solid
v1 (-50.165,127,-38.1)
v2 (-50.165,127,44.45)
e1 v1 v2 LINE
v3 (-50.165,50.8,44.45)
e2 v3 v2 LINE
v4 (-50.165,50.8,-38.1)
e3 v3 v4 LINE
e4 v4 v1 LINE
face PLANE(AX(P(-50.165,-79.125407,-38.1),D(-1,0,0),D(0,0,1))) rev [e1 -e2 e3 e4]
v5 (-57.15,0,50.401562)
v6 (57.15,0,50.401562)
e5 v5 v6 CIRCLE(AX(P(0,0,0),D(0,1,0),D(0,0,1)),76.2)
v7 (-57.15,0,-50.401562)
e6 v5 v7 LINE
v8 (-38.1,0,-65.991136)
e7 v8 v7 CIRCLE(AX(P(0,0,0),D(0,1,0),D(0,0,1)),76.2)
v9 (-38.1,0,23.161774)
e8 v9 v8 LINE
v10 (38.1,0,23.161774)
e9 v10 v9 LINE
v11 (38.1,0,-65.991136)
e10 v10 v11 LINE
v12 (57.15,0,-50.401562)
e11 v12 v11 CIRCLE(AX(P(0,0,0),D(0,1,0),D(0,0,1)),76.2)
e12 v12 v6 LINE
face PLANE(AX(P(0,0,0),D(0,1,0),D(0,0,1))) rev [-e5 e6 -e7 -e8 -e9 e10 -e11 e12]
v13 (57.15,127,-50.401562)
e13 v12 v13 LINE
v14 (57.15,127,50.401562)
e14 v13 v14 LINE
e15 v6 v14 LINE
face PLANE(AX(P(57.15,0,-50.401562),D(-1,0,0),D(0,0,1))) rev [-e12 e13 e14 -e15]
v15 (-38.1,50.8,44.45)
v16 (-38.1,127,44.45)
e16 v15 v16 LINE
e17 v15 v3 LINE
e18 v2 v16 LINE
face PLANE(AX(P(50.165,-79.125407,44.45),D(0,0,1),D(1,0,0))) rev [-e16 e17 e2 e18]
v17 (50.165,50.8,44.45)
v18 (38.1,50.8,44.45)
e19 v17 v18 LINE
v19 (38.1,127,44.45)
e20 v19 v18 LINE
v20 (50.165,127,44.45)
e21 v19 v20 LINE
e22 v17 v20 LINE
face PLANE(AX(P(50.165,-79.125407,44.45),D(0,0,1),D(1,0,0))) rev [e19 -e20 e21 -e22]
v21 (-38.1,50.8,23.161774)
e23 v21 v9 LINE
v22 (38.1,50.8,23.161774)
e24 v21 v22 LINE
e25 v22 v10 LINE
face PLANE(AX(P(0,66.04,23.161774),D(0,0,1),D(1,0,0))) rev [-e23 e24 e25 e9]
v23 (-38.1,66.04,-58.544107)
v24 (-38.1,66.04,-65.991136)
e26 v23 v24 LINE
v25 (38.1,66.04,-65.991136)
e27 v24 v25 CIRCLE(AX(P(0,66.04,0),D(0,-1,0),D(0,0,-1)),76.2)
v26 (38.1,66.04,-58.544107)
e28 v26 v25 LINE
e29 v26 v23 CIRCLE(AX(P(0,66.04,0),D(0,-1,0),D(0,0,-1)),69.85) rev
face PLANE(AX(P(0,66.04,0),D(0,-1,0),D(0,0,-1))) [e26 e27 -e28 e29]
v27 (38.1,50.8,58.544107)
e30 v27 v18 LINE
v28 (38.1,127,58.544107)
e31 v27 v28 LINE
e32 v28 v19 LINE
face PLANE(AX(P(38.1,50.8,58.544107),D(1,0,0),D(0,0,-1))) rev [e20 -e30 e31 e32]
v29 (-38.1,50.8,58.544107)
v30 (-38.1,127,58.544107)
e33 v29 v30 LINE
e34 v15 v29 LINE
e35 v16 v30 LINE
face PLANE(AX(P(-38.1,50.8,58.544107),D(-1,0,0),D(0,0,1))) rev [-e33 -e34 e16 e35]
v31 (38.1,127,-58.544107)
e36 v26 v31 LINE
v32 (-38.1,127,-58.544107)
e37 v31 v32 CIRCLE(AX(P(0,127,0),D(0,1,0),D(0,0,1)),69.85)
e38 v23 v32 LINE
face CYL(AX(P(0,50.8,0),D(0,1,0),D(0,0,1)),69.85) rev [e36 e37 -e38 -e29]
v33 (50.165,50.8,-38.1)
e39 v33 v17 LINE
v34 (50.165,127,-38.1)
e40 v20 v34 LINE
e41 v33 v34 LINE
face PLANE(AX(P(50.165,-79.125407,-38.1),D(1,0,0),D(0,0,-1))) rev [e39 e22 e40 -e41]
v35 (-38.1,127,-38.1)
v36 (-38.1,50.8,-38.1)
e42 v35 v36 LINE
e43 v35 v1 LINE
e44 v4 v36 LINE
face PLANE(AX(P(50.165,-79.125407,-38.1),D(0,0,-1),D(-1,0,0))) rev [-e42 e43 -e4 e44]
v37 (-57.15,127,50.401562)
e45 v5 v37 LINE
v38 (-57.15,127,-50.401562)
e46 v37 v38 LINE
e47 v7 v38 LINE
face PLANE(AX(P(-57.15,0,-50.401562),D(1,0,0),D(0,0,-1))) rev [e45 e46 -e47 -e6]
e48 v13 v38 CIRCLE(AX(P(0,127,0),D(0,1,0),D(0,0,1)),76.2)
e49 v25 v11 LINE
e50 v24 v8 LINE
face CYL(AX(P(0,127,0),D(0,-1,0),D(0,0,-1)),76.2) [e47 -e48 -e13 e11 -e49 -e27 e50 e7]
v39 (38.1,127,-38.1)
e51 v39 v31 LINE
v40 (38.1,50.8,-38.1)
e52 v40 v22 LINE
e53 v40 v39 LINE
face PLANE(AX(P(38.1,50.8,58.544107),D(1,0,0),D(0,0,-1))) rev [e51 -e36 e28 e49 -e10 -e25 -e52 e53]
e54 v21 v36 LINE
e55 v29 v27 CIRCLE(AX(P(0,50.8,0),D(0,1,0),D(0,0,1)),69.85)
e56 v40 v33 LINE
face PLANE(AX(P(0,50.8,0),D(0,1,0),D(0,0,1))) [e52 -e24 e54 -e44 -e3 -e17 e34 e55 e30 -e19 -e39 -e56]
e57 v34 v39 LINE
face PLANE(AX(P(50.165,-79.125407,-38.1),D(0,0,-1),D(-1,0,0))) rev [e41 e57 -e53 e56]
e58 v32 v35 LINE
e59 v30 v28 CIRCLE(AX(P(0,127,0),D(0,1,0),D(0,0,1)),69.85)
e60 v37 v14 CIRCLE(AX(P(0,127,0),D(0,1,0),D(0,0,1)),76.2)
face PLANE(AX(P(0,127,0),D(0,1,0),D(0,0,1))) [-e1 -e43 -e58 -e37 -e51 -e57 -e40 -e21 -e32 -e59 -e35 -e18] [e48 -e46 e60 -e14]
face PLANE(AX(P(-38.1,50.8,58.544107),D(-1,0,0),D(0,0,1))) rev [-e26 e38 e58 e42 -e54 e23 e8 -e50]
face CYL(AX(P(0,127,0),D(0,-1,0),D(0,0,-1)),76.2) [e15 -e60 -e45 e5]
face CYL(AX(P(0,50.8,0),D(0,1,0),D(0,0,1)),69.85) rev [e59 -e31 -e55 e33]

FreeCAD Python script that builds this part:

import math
import FreeCAD as App
import Part
import Sketcher
from FreeCAD import Vector
Q = App.Units.Quantity


def add_polygon(sketch, points):
    """Adds a closed chain of lines whose ends are joined by coincident constraints."""
    first, n = sketch.GeometryCount, len(points)
    for a, b in zip(points, points[1:] + points[:1]):
        sketch.addGeometry(Part.LineSegment(App.Vector(*a, 0), App.Vector(*b, 0)), False)
    for i in range(n):
        sketch.addConstraint(Sketcher.Constraint("Coincident", first + i, 2, first + (i + 1) % n, 1))

doc = App.newDocument("Part")
params = doc.addObject("Spreadsheet::Sheet", "Params")
for row, (alias, value) in enumerate([
    ("sketch1_diameter", "6 in"),
    ("pad1_length", "5 in"),
    ("sketch2_radius", "2.75 in"),
    ("pocket1_length", "3 in"),
    ("sketch3_radius", "3 in"),
    ("sketch3_width", "3 in"),
    ("pocket2_length", "2.6 in"),
    ("sketch4_radius", "3 in"),
    ("sketch5_width", "3.95 in"),
    ("sketch5_height", "3.25 in"),
    ("pocket4_length", "3 in"),
], start=1):
    params.set(f"A{row}", alias)
    params.set(f"B{row}", "=" + value)
    params.setAlias(f"B{row}", alias)

body = doc.addObject("PartDesign::Body", "Body")

# Sketch on XZ plane
sketch1 = body.newObject("Sketcher::SketchObject", "Sketch")
sketch1.AttachmentSupport = (doc.getObject("XZ_Plane"), [""])
sketch1.MapMode = "FlatFace"
sketch1.addGeometry(Part.Circle(Vector(0, 0, 0), Vector(0, 0, 1), 76.2), False)
sketch1.addConstraint(Sketcher.Constraint("Coincident", 0, 3, -1, 1))
sketch1.addConstraint(Sketcher.Constraint("Diameter", 0, Q("6 in")))
sketch1.setExpression("Constraints[1]", "Params.sketch1_diameter")
pad1 = body.newObject("PartDesign::Pad", "Pad")
pad1.Profile = sketch1
pad1.setExpression("Length", "Params.pad1_length")
pad1.Reversed = True

# Sketch on XZ plane
sketch2 = body.newObject("Sketcher::SketchObject", "Sketch001")
sketch2.AttachmentSupport = (doc.getObject("XZ_Plane"), [""])
sketch2.MapMode = "FlatFace"
sketch2.AttachmentOffset = App.Placement(Vector(0, 0, -5 * 25.4), App.Rotation())
sketch2.addGeometry(Part.LineSegment(Vector(38.1, 58.544107, 0), Vector(38.1, -58.544107, 0)), False)
sketch2.addGeometry(Part.ArcOfCircle(Part.Circle(Vector(0, 0, 0), Vector(0, 0, 1), 69.85), math.radians(-123.055731), math.radians(-56.944269)), False)
sketch2.addGeometry(Part.LineSegment(Vector(-38.1, -58.544107, 0), Vector(-38.1, 58.544107, 0)), False)
sketch2.addGeometry(Part.ArcOfCircle(Part.Circle(Vector(0, 0, 0), Vector(0, 0, 1), 69.85), math.radians(56.944269), math.radians(123.055731)), False)
sketch2.addConstraint(Sketcher.Constraint("Coincident", 0, 2, 1, 2))
sketch2.addConstraint(Sketcher.Constraint("Coincident", 1, 1, 2, 1))
sketch2.addConstraint(Sketcher.Constraint("Coincident", 2, 2, 3, 2))
sketch2.addConstraint(Sketcher.Constraint("Coincident", 3, 1, 0, 1))
sketch2.addConstraint(Sketcher.Constraint("Vertical", 0))
sketch2.addConstraint(Sketcher.Constraint("Vertical", 2))
sketch2.addConstraint(Sketcher.Constraint("Coincident", 1, 3, -1, 1))
sketch2.addConstraint(Sketcher.Constraint("Coincident", 3, 3, -1, 1))
sketch2.addConstraint(Sketcher.Constraint("Equal", 1, 3))
sketch2.addConstraint(Sketcher.Constraint("Horizontal", 0, 2, 1, 1))
sketch2.addConstraint(Sketcher.Constraint("Radius", 1, Q("2.75 in")))
sketch2.addConstraint(Sketcher.Constraint("DistanceX", 1, 1, 0, 2, Q("3 in")))
sketch2.setExpression("Constraints[10]", "Params.sketch2_radius")
pocket1 = body.newObject("PartDesign::Pocket", "Pocket")
pocket1.Profile = sketch2
pocket1.setExpression("Length", "Params.pocket1_length")
pocket1.Reversed = True

# Sketch on XZ plane
sketch3 = body.newObject("Sketcher::SketchObject", "Sketch002")
sketch3.AttachmentSupport = (doc.getObject("XZ_Plane"), [""])
sketch3.MapMode = "FlatFace"
sketch3.addGeometry(Part.LineSegment(Vector(-38.1, 23.161774, 0), Vector(-38.1, -65.991136, 0)), False)
sketch3.addGeometry(Part.ArcOfCircle(Part.Circle(Vector(0, 0, 0), Vector(0, 0, 1), 76.2), math.radians(-120), math.radians(-60)), False)
sketch3.addGeometry(Part.LineSegment(Vector(38.1, -65.991136, 0), Vector(38.1, 23.161774, 0)), False)
sketch3.addGeometry(Part.LineSegment(Vector(38.1, 23.161774, 0), Vector(-38.1, 23.161774, 0)), False)
sketch3.addConstraint(Sketcher.Constraint("Coincident", 0, 2, 1, 1))
sketch3.addConstraint(Sketcher.Constraint("Coincident", 1, 2, 2, 1))
sketch3.addConstraint(Sketcher.Constraint("Coincident", 2, 2, 3, 1))
sketch3.addConstraint(Sketcher.Constraint("Coincident", 3, 2, 0, 1))
sketch3.addConstraint(Sketcher.Constraint("Vertical", 0))
sketch3.addConstraint(Sketcher.Constraint("Vertical", 2))
sketch3.addConstraint(Sketcher.Constraint("Horizontal", 3))
sketch3.addConstraint(Sketcher.Constraint("Coincident", 1, 3, -1, 1))
sketch3.addConstraint(Sketcher.Constraint("Horizontal", 0, 2, 1, 2))
sketch3.addConstraint(Sketcher.Constraint("Radius", 1, Q("3 in")))
sketch3.addConstraint(Sketcher.Constraint("DistanceX", 3, 2, 3, 1, Q("3 in")))
sketch3.addConstraint(Sketcher.Constraint("DistanceY", 0, 2, 0, 1, Q("89.15291 mm")))
sketch3.setExpression("Constraints[9]", "Params.sketch3_radius")
sketch3.setExpression("Constraints[10]", "Params.sketch3_width")
pocket2 = body.newObject("PartDesign::Pocket", "Pocket001")
pocket2.Profile = sketch3
pocket2.setExpression("Length", "Params.pocket2_length")

# Sketch on XZ plane
sketch4 = body.newObject("Sketcher::SketchObject", "Sketch003")
sketch4.AttachmentSupport = (doc.getObject("XZ_Plane"), [""])
sketch4.MapMode = "FlatFace"
sketch4.AttachmentOffset = App.Placement(Vector(0, 0, -5 * 25.4), App.Rotation())
sketch4.addGeometry(Part.LineSegment(Vector(-57.15, 50.401562, 0), Vector(-57.15, -50.401562, 0)), False)
sketch4.addGeometry(Part.ArcOfCircle(Part.Circle(Vector(0, 0, 0), Vector(0, 0, 1), 76.2), math.radians(138.590378), math.radians(221.409622)), False)
sketch4.addGeometry(Part.LineSegment(Vector(57.15, -50.401562, 0), Vector(57.15, 50.401562, 0)), False)
sketch4.addGeometry(Part.ArcOfCircle(Part.Circle(Vector(0, 0, 0), Vector(0, 0, 1), 76.2), math.radians(-41.409622), math.radians(41.409622)), False)
sketch4.addConstraint(Sketcher.Constraint("Coincident", 0, 1, 1, 1))
sketch4.addConstraint(Sketcher.Constraint("Coincident", 1, 2, 0, 2))
sketch4.addConstraint(Sketcher.Constraint("Coincident", 2, 1, 3, 1))
sketch4.addConstraint(Sketcher.Constraint("Coincident", 3, 2, 2, 2))
sketch4.addConstraint(Sketcher.Constraint("Vertical", 0))
sketch4.addConstraint(Sketcher.Constraint("Vertical", 2))
sketch4.addConstraint(Sketcher.Constraint("Coincident", 1, 3, -1, 1))
sketch4.addConstraint(Sketcher.Constraint("Coincident", 3, 3, -1, 1))
sketch4.addConstraint(Sketcher.Constraint("Equal", 1, 3))
sketch4.addConstraint(Sketcher.Constraint("Horizontal", 1, 2, 2, 1))
sketch4.addConstraint(Sketcher.Constraint("Radius", 1, Q("3 in")))
sketch4.addConstraint(Sketcher.Constraint("DistanceX", 1, 2, 2, 1, Q("4.5 in")))
sketch4.setExpression("Constraints[10]", "Params.sketch4_radius")
pocket3 = body.newObject("PartDesign::Pocket", "Pocket002")
pocket3.Profile = sketch4
pocket3.Type = "ThroughAll"
pocket3.Reversed = True

# Sketch on XZ plane
sketch5 = body.newObject("Sketcher::SketchObject", "Sketch004")
sketch5.AttachmentSupport = (doc.getObject("XZ_Plane"), [""])
sketch5.MapMode = "FlatFace"
sketch5.AttachmentOffset = App.Placement(Vector(0, 0, -5 * 25.4), App.Rotation())
add_polygon(sketch5, [(-50.165, -38.1), (-50.165, 44.45), (50.165, 44.45), (50.165, -38.1)])  # lines 0-3
sketch5.addConstraint(Sketcher.Constraint("Vertical", 0))
sketch5.addConstraint(Sketcher.Constraint("Horizontal", 1))
sketch5.addConstraint(Sketcher.Constraint("Vertical", 2))
sketch5.addConstraint(Sketcher.Constraint("Horizontal", 3))
sketch5.addConstraint(Sketcher.Constraint("DistanceX", 1, 1, 1, 2, Q("3.95 in")))
sketch5.addConstraint(Sketcher.Constraint("DistanceY", 0, 1, 0, 2, Q("3.25 in")))
sketch5.addConstraint(Sketcher.Constraint("DistanceY", 2, 2, -1, 1, Q("1.5 in")))
sketch5.addConstraint(Sketcher.Constraint("DistanceX", 0, 2, -1, 1, Q("1.975 in")))
sketch5.setExpression("Constraints[8]", "Params.sketch5_width")
sketch5.setExpression("Constraints[9]", "Params.sketch5_height")
pocket4 = body.newObject("PartDesign::Pocket", "Pocket003")
pocket4.Profile = sketch5
pocket4.setExpression("Length", "Params.pocket4_length")
pocket4.Reversed = True

doc.recompute()
